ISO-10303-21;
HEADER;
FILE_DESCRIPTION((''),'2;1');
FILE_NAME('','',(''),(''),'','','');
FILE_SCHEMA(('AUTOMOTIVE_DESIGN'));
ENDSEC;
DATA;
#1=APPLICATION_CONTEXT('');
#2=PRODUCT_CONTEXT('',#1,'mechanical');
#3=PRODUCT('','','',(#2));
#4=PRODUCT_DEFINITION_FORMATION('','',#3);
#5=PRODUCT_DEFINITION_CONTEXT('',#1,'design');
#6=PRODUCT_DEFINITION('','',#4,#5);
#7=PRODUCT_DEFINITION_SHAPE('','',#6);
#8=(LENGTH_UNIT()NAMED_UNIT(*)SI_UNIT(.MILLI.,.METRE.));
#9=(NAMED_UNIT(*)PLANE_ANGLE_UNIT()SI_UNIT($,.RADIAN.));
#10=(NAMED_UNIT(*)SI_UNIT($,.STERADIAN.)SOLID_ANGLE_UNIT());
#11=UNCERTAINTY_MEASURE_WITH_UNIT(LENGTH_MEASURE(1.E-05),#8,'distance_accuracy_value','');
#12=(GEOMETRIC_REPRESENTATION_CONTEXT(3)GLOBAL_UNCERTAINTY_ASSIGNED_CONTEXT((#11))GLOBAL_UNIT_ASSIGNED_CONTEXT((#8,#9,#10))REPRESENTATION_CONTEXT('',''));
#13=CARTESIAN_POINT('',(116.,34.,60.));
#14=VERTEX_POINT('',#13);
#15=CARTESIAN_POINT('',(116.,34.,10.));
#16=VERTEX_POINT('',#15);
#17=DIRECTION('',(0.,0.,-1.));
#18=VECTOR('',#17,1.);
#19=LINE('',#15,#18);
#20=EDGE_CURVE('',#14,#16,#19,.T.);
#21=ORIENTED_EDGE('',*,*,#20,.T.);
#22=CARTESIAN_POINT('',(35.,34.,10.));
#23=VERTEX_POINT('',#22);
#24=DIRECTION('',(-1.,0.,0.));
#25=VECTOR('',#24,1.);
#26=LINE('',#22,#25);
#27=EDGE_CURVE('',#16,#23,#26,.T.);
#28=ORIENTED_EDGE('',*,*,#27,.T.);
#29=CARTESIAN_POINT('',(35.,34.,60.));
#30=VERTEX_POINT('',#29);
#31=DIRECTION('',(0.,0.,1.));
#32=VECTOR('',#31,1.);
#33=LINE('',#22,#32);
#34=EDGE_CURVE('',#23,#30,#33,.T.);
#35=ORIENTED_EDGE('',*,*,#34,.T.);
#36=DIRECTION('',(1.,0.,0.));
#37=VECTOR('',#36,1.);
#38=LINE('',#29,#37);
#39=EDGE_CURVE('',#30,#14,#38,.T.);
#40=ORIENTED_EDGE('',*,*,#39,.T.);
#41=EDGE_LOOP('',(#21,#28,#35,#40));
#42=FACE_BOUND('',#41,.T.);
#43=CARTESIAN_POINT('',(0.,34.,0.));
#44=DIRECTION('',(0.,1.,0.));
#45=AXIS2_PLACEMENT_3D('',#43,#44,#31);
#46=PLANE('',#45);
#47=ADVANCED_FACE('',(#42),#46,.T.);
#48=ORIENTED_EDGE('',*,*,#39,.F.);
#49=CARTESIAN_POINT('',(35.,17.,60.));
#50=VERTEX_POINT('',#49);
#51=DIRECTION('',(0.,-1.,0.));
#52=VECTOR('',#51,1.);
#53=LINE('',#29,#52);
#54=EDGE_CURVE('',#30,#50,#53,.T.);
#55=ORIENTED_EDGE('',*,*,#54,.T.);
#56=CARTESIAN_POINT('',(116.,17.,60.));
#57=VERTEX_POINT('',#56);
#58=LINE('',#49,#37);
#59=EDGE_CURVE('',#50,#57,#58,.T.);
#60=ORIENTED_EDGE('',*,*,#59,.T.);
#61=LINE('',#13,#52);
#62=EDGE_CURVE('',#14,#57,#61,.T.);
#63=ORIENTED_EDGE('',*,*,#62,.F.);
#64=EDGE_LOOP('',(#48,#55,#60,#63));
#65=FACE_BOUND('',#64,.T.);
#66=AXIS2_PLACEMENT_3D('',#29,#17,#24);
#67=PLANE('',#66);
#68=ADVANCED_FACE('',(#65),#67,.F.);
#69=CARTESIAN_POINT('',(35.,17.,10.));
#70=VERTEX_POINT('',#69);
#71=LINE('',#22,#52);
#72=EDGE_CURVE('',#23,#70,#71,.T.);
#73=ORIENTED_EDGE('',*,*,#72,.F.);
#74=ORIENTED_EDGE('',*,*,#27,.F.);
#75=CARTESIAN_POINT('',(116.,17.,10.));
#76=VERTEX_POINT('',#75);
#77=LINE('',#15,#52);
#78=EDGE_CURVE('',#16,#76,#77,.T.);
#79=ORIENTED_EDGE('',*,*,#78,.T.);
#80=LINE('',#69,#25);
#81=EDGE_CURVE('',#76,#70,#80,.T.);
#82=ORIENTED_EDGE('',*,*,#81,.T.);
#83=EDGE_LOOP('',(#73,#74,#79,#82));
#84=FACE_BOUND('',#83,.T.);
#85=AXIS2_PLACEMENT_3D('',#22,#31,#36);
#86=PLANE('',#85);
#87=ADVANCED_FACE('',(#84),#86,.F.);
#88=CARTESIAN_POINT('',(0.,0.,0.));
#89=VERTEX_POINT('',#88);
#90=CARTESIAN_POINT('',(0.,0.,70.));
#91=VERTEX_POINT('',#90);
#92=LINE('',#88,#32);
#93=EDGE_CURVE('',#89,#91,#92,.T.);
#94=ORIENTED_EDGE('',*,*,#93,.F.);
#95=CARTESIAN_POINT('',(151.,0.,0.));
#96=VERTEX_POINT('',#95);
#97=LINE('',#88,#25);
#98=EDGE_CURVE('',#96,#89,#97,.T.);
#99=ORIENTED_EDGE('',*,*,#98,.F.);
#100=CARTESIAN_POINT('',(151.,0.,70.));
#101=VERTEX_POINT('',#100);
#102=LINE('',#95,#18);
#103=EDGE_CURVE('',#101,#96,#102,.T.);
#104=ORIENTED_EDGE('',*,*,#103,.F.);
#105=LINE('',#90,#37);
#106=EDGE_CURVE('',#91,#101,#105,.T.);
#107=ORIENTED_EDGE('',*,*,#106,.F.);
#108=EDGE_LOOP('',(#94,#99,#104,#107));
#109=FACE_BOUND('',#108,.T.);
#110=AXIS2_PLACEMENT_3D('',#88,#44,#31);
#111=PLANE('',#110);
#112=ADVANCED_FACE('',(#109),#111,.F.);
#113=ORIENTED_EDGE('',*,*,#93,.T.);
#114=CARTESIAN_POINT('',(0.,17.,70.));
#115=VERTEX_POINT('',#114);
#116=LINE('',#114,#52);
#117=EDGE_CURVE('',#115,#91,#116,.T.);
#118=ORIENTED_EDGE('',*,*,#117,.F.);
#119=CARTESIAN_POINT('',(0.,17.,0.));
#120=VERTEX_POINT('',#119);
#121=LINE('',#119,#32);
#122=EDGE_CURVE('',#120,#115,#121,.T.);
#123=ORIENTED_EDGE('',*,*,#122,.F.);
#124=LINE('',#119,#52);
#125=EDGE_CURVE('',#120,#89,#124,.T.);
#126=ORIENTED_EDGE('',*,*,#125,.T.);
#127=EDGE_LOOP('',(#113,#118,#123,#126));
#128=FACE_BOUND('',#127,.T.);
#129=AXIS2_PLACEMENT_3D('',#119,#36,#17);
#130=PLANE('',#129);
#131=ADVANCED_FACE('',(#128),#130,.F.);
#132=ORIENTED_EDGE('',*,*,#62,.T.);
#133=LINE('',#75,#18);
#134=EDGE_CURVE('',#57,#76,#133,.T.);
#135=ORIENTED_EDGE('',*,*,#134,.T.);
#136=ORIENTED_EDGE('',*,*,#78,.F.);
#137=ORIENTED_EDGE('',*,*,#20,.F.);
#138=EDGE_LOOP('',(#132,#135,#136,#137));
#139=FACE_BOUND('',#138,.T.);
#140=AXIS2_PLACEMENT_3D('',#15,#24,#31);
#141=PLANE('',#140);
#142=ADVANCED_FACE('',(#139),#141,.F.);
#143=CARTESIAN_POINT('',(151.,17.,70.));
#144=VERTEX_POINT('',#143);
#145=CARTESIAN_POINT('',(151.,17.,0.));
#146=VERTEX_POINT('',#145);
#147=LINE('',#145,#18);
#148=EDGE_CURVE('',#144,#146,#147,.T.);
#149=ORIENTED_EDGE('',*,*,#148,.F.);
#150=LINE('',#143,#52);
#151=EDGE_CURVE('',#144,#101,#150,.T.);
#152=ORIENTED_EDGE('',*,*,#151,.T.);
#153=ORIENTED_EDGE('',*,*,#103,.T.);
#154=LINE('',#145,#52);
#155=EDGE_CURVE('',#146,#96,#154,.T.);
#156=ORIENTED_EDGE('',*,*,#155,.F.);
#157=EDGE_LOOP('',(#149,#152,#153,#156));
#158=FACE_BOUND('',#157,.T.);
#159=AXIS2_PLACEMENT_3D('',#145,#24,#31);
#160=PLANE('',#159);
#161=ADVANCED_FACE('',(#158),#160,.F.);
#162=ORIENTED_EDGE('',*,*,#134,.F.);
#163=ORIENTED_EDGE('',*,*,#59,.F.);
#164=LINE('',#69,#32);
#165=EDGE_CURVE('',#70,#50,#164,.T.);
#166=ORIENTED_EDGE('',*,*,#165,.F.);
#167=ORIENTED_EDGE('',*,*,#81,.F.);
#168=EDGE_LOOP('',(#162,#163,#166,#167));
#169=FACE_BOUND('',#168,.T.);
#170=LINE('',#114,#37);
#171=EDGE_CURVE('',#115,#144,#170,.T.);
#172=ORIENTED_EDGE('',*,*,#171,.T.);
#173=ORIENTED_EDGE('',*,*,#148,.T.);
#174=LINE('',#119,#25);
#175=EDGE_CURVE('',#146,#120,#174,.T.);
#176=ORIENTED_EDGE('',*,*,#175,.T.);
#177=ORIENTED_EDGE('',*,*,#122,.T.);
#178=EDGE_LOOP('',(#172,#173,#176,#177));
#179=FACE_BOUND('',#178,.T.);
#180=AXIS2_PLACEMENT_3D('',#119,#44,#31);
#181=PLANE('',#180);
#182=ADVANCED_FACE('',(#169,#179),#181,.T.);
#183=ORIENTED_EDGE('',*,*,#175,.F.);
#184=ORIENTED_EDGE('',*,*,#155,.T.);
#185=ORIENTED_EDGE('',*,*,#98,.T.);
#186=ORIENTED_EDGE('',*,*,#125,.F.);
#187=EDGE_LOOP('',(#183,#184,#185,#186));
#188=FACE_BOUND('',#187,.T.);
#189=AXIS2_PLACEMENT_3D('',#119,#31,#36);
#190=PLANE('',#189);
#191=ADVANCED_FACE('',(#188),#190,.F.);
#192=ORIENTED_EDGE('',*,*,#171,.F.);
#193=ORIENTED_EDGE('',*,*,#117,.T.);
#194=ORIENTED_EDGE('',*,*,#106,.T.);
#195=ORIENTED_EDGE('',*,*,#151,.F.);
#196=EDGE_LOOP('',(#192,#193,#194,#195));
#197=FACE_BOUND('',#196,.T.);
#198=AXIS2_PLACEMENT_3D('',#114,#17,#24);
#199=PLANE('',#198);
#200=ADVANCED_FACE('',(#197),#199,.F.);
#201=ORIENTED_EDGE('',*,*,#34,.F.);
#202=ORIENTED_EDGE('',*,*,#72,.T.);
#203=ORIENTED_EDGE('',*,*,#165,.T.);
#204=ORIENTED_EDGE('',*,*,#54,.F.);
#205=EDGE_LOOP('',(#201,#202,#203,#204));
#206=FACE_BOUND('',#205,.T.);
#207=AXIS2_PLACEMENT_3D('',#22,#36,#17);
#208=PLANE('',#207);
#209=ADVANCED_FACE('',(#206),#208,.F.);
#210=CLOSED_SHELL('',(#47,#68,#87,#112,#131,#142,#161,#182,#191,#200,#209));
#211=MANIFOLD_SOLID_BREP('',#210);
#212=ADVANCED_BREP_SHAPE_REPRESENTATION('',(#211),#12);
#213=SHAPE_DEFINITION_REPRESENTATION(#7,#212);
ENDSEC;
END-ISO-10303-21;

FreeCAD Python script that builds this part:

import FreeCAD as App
import Part
import Sketcher

V = App.Vector
Q = App.Units.Quantity

doc = App.newDocument("Part")
body = doc.addObject("PartDesign::Body", "Body")

# Sketch on XZ plane
sketch1 = doc.addObject("Sketcher::SketchObject", "Sketch")
body.addObject(sketch1)
sketch1.AttachmentSupport = (doc.XZ_Plane, [""])
sketch1.MapMode = "FlatFace"
sketch1.addGeometry([
    Part.LineSegment(V(0, 0, 0), V(0, 70, 0)),
    Part.LineSegment(V(0, 70, 0), V(151, 70, 0)),
    Part.LineSegment(V(151, 70, 0), V(151, 0, 0)),
    Part.LineSegment(V(151, 0, 0), V(0, 0, 0)),
], False)
sketch1.addConstraint([
    Sketcher.Constraint("Coincident", 0, 2, 1, 1),
    Sketcher.Constraint("Coincident", 1, 2, 2, 1),
    Sketcher.Constraint("Coincident", 2, 2, 3, 1),
    Sketcher.Constraint("Coincident", 3, 2, 0, 1),
    Sketcher.Constraint("Vertical", 0),
    Sketcher.Constraint("Horizontal", 1),
    Sketcher.Constraint("Vertical", 2),
    Sketcher.Constraint("Horizontal", 3),
    Sketcher.Constraint("Coincident", 3, 2, -1, 1),
    Sketcher.Constraint("DistanceX", 1, 1, 1, 2, Q("151 mm")),
    Sketcher.Constraint("DistanceY", 0, 1, 0, 2, Q("70 mm")),
])
pad1 = doc.addObject("PartDesign::Pad", "Pad")
body.addObject(pad1)
pad1.Profile = sketch1
pad1.Length = 17
pad1.Reversed = True

# Sketch on XZ plane
sketch2 = doc.addObject("Sketcher::SketchObject", "Sketch001")
body.addObject(sketch2)
sketch2.AttachmentSupport = (doc.XZ_Plane, [""])
sketch2.MapMode = "FlatFace"
sketch2.AttachmentOffset = App.Placement(V(0, 0, -17), App.Rotation())
sketch2.addGeometry([
    Part.LineSegment(V(35, 10, 0), V(35, 60, 0)),
    Part.LineSegment(V(35, 60, 0), V(116, 60, 0)),
    Part.LineSegment(V(116, 60, 0), V(116, 10, 0)),
    Part.LineSegment(V(116, 10, 0), V(35, 10, 0)),
], False)
sketch2.addConstraint([
    Sketcher.Constraint("Coincident", 0, 2, 1, 1),
    Sketcher.Constraint("Coincident", 1, 2, 2, 1),
    Sketcher.Constraint("Coincident", 2, 2, 3, 1),
    Sketcher.Constraint("Coincident", 3, 2, 0, 1),
    Sketcher.Constraint("Vertical", 0),
    Sketcher.Constraint("Horizontal", 1),
    Sketcher.Constraint("Vertical", 2),
    Sketcher.Constraint("Horizontal", 3),
    Sketcher.Constraint("DistanceX", 1, 1, 1, 2, Q("81 mm")),
    Sketcher.Constraint("DistanceY", 0, 1, 0, 2, Q("50 mm")),
    Sketcher.Constraint("DistanceX", -1, 1, 0, 2, Q("35 mm")),
    Sketcher.Constraint("DistanceY", -1, 1, 0, 2, Q("60 mm")),
])
pad2 = doc.addObject("PartDesign::Pad", "Pad001")
body.addObject(pad2)
pad2.Profile = sketch2
pad2.Length = 17
pad2.Reversed = True

doc.recompute()
